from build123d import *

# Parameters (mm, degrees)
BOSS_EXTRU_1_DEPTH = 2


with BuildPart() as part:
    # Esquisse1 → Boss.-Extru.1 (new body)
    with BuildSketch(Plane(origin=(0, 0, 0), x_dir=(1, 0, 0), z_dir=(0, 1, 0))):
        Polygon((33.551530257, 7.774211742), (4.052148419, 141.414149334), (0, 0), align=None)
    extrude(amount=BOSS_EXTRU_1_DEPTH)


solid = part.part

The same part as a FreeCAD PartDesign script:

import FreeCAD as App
import Part
import Sketcher
from FreeCAD import Vector
Q = App.Units.Quantity


def add_polygon(sketch, points):
    """Adds a closed chain of lines whose ends are joined by coincident constraints."""
    first, n = sketch.GeometryCount, len(points)
    for a, b in zip(points, points[1:] + points[:1]):
        sketch.addGeometry(Part.LineSegment(App.Vector(*a, 0), App.Vector(*b, 0)), False)
    for i in range(n):
        sketch.addConstraint(Sketcher.Constraint("Coincident", first + i, 2, first + (i + 1) % n, 1))

doc = App.newDocument("Part")
body = doc.addObject("PartDesign::Body", "Body")

# Sketch on XZ plane
sketch1 = doc.addObject("Sketcher::SketchObject", "Sketch")
body.addObject(sketch1)
sketch1.AttachmentSupport = (doc.XZ_Plane, [""])
sketch1.MapMode = "FlatFace"
add_polygon(sketch1, [(33.55153, -7.774212), (4.052148, -141.414149), (0, 0)])  # lines 0-2
sketch1.addConstraint([
    Sketcher.Constraint("Coincident", 1, 2, -1, 1),
    Sketcher.Constraint("Distance", 0, Q("136.857029 mm")),
    Sketcher.Constraint("DistanceX", -1, 1, 0, 2, Q("4.052148 mm")),
    Sketcher.Constraint("DistanceY", 0, 2, -1, 1, Q("141.414149 mm")),
    Sketcher.Constraint("DistanceX", -1, 1, 2, 2, Q("33.55153 mm")),
])
pad1 = doc.addObject("PartDesign::Pad", "Pad")
body.addObject(pad1)
pad1.Profile = sketch1
pad1.Length = 2
pad1.Reversed = True

doc.recompute()
